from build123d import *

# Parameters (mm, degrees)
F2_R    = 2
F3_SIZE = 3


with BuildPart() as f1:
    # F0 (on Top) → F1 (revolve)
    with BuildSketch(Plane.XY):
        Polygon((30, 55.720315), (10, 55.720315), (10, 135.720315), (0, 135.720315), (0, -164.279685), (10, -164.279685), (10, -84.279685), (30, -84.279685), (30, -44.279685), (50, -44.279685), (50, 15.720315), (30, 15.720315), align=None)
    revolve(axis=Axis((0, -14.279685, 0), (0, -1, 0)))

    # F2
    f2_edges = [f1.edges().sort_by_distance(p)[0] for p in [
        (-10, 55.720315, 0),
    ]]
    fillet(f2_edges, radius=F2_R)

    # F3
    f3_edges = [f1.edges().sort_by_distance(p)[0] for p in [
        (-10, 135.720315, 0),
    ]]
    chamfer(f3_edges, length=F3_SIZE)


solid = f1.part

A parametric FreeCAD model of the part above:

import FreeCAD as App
import Part
import Sketcher

V = App.Vector
Q = App.Units.Quantity


def edges_at(feature, points):
    """Names of the edges that pass closest to the given points."""
    edges = feature.Shape.Edges
    near = lambda p: min(range(len(edges)), key=lambda i: edges[i].distToShape(Part.Vertex(*p))[0])
    return sorted({f"Edge{near(p) + 1}" for p in points})


def add_polygon(sketch, points):
    """Adds a closed chain of lines whose ends are joined by coincident constraints."""
    first, n = sketch.GeometryCount, len(points)
    for a, b in zip(points, points[1:] + points[:1]):
        sketch.addGeometry(Part.LineSegment(App.Vector(*a, 0), App.Vector(*b, 0)), False)
    for i in range(n):
        sketch.addConstraint(Sketcher.Constraint("Coincident", first + i, 2, first + (i + 1) % n, 1))

doc = App.newDocument("Part")
params = doc.addObject("Spreadsheet::Sheet", "Params")
for row, (alias, value) in enumerate([
    ("sketch1_width", "20 mm"),
    ("sketch1_width2", "10 mm"),
    ("sketch1_height", "80 mm"),
    ("sketch1_height2", "300 mm"),
    ("sketch1_height3", "40 mm"),
    ("revolution_angle", "360 deg"),
    ("fillet_radius", "2 mm"),
    ("chamfer_size", "3 mm"),
], start=1):
    params.set(f"A{row}", alias)
    params.set(f"B{row}", "=" + value)
    params.setAlias(f"B{row}", alias)

body = doc.addObject("PartDesign::Body", "Body")

# Sketch on XY plane
sketch1 = body.newObject("Sketcher::SketchObject", "Sketch")
sketch1.AttachmentSupport = (doc.getObject("XY_Plane"), [""])
sketch1.MapMode = "FlatFace"
add_polygon(sketch1, [(30, 55.720315), (10, 55.720315), (10, 135.720315), (0, 135.720315), (0, -164.279685), (10, -164.279685), (10, -84.279685), (30, -84.279685), (30, -44.279685), (50, -44.279685), (50, 15.720315), (30, 15.720315)])  # lines 0-11
sketch1.addConstraint(Sketcher.Constraint("Horizontal", 0))
sketch1.addConstraint(Sketcher.Constraint("Vertical", 1))
sketch1.addConstraint(Sketcher.Constraint("Horizontal", 2))
sketch1.addConstraint(Sketcher.Constraint("Vertical", 3))
sketch1.addConstraint(Sketcher.Constraint("Horizontal", 4))
sketch1.addConstraint(Sketcher.Constraint("Vertical", 5))
sketch1.addConstraint(Sketcher.Constraint("Horizontal", 6))
sketch1.addConstraint(Sketcher.Constraint("Vertical", 7))
sketch1.addConstraint(Sketcher.Constraint("Horizontal", 8))
sketch1.addConstraint(Sketcher.Constraint("Vertical", 9))
sketch1.addConstraint(Sketcher.Constraint("Horizontal", 10))
sketch1.addConstraint(Sketcher.Constraint("Vertical", 11))
sketch1.addConstraint(Sketcher.Constraint("PointOnObject", 2, 2, -2))
sketch1.addConstraint(Sketcher.Constraint("Vertical", 1, 2, 4, 2))
sketch1.addConstraint(Sketcher.Constraint("Vertical", 7, 2, 10, 2))
sketch1.addConstraint(Sketcher.Constraint("Equal", 6, 8))
sketch1.addConstraint(Sketcher.Constraint("Equal", 1, 5))
sketch1.addConstraint(Sketcher.Constraint("Equal", 7, 11))
sketch1.addConstraint(Sketcher.Constraint("DistanceX", 0, 2, 0, 1, Q("20 mm")))
sketch1.addConstraint(Sketcher.Constraint("DistanceX", 2, 2, 2, 1, Q("10 mm")))
sketch1.addConstraint(Sketcher.Constraint("DistanceY", 1, 1, 1, 2, Q("80 mm")))
sketch1.addConstraint(Sketcher.Constraint("DistanceY", 3, 2, 3, 1, Q("300 mm")))
sketch1.addConstraint(Sketcher.Constraint("DistanceY", 7, 1, 7, 2, Q("40 mm")))
sketch1.addConstraint(Sketcher.Constraint("DistanceY", -1, 1, 0, 2, Q("55.720315 mm")))
sketch1.setExpression("Constraints[30]", "Params.sketch1_width")
sketch1.setExpression("Constraints[31]", "Params.sketch1_width2")
sketch1.setExpression("Constraints[32]", "Params.sketch1_height")
sketch1.setExpression("Constraints[33]", "Params.sketch1_height2")
sketch1.setExpression("Constraints[34]", "Params.sketch1_height3")
revolution = body.newObject("PartDesign::Revolution", "Revolution")
revolution.Profile = sketch1
revolution.ReferenceAxis = (sketch1, ["V_Axis"])
revolution.setExpression("Angle", "Params.revolution_angle")
doc.recompute()

fillet = body.newObject("PartDesign::Fillet", "Fillet")
fillet.Base = (revolution, edges_at(revolution, [(-10, 55.72, 0)]))
fillet.setExpression("Radius", "Params.fillet_radius")
doc.recompute()

chamfer = body.newObject("PartDesign::Chamfer", "Chamfer")
chamfer.Base = (fillet, edges_at(fillet, [(-10, 135.72, 0)]))
chamfer.setExpression("Size", "Params.chamfer_size")

doc.recompute()
